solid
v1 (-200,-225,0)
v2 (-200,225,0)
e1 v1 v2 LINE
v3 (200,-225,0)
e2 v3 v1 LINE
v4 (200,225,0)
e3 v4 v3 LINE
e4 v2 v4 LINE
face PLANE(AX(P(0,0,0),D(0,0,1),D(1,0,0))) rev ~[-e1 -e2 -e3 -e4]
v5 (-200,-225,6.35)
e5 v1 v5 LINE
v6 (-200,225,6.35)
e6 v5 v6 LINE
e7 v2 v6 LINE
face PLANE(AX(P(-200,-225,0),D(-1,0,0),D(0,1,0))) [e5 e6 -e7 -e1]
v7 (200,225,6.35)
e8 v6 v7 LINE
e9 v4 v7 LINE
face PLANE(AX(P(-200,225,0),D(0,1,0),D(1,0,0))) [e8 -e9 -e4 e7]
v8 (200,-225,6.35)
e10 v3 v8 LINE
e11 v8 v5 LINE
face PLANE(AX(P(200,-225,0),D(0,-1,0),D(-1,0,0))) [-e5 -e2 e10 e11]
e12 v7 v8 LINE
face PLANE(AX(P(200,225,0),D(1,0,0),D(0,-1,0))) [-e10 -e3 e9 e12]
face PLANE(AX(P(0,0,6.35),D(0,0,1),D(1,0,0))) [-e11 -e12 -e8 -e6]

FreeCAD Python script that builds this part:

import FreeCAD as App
import Part
import Sketcher


def add_polygon(sketch, points):
    """Adds a closed chain of lines whose ends are joined by coincident constraints."""
    first, n = sketch.GeometryCount, len(points)
    for a, b in zip(points, points[1:] + points[:1]):
        sketch.addGeometry(Part.LineSegment(App.Vector(*a, 0), App.Vector(*b, 0)), False)
    for i in range(n):
        sketch.addConstraint(Sketcher.Constraint("Coincident", first + i, 2, first + (i + 1) % n, 1))

doc = App.newDocument("Part")
body = doc.addObject("PartDesign::Body", "Body")

# Sketch on XY plane
sketch1 = doc.addObject("Sketcher::SketchObject", "Sketch")
body.addObject(sketch1)
sketch1.AttachmentSupport = (doc.XY_Plane, [""])
sketch1.MapMode = "FlatFace"
add_polygon(sketch1, [(200, 225), (-200, 225), (-200, -225), (200, -225)])  # lines 0-3
sketch1.addConstraint([
    Sketcher.Constraint("Horizontal", 0),
    Sketcher.Constraint("Vertical", 1),
    Sketcher.Constraint("Horizontal", 2),
    Sketcher.Constraint("Vertical", 3),
    Sketcher.Constraint("Symmetric", 0, 2, 2, 2, -1, 1),
    Sketcher.Constraint("DistanceX", 0, 2, 0, 1, 400.0),
    Sketcher.Constraint("DistanceY", 1, 2, 1, 1, 450.0),
])
pad1 = doc.addObject("PartDesign::Pad", "Pad")
body.addObject(pad1)
pad1.Profile = sketch1
pad1.Length = 6.35

doc.recompute()
